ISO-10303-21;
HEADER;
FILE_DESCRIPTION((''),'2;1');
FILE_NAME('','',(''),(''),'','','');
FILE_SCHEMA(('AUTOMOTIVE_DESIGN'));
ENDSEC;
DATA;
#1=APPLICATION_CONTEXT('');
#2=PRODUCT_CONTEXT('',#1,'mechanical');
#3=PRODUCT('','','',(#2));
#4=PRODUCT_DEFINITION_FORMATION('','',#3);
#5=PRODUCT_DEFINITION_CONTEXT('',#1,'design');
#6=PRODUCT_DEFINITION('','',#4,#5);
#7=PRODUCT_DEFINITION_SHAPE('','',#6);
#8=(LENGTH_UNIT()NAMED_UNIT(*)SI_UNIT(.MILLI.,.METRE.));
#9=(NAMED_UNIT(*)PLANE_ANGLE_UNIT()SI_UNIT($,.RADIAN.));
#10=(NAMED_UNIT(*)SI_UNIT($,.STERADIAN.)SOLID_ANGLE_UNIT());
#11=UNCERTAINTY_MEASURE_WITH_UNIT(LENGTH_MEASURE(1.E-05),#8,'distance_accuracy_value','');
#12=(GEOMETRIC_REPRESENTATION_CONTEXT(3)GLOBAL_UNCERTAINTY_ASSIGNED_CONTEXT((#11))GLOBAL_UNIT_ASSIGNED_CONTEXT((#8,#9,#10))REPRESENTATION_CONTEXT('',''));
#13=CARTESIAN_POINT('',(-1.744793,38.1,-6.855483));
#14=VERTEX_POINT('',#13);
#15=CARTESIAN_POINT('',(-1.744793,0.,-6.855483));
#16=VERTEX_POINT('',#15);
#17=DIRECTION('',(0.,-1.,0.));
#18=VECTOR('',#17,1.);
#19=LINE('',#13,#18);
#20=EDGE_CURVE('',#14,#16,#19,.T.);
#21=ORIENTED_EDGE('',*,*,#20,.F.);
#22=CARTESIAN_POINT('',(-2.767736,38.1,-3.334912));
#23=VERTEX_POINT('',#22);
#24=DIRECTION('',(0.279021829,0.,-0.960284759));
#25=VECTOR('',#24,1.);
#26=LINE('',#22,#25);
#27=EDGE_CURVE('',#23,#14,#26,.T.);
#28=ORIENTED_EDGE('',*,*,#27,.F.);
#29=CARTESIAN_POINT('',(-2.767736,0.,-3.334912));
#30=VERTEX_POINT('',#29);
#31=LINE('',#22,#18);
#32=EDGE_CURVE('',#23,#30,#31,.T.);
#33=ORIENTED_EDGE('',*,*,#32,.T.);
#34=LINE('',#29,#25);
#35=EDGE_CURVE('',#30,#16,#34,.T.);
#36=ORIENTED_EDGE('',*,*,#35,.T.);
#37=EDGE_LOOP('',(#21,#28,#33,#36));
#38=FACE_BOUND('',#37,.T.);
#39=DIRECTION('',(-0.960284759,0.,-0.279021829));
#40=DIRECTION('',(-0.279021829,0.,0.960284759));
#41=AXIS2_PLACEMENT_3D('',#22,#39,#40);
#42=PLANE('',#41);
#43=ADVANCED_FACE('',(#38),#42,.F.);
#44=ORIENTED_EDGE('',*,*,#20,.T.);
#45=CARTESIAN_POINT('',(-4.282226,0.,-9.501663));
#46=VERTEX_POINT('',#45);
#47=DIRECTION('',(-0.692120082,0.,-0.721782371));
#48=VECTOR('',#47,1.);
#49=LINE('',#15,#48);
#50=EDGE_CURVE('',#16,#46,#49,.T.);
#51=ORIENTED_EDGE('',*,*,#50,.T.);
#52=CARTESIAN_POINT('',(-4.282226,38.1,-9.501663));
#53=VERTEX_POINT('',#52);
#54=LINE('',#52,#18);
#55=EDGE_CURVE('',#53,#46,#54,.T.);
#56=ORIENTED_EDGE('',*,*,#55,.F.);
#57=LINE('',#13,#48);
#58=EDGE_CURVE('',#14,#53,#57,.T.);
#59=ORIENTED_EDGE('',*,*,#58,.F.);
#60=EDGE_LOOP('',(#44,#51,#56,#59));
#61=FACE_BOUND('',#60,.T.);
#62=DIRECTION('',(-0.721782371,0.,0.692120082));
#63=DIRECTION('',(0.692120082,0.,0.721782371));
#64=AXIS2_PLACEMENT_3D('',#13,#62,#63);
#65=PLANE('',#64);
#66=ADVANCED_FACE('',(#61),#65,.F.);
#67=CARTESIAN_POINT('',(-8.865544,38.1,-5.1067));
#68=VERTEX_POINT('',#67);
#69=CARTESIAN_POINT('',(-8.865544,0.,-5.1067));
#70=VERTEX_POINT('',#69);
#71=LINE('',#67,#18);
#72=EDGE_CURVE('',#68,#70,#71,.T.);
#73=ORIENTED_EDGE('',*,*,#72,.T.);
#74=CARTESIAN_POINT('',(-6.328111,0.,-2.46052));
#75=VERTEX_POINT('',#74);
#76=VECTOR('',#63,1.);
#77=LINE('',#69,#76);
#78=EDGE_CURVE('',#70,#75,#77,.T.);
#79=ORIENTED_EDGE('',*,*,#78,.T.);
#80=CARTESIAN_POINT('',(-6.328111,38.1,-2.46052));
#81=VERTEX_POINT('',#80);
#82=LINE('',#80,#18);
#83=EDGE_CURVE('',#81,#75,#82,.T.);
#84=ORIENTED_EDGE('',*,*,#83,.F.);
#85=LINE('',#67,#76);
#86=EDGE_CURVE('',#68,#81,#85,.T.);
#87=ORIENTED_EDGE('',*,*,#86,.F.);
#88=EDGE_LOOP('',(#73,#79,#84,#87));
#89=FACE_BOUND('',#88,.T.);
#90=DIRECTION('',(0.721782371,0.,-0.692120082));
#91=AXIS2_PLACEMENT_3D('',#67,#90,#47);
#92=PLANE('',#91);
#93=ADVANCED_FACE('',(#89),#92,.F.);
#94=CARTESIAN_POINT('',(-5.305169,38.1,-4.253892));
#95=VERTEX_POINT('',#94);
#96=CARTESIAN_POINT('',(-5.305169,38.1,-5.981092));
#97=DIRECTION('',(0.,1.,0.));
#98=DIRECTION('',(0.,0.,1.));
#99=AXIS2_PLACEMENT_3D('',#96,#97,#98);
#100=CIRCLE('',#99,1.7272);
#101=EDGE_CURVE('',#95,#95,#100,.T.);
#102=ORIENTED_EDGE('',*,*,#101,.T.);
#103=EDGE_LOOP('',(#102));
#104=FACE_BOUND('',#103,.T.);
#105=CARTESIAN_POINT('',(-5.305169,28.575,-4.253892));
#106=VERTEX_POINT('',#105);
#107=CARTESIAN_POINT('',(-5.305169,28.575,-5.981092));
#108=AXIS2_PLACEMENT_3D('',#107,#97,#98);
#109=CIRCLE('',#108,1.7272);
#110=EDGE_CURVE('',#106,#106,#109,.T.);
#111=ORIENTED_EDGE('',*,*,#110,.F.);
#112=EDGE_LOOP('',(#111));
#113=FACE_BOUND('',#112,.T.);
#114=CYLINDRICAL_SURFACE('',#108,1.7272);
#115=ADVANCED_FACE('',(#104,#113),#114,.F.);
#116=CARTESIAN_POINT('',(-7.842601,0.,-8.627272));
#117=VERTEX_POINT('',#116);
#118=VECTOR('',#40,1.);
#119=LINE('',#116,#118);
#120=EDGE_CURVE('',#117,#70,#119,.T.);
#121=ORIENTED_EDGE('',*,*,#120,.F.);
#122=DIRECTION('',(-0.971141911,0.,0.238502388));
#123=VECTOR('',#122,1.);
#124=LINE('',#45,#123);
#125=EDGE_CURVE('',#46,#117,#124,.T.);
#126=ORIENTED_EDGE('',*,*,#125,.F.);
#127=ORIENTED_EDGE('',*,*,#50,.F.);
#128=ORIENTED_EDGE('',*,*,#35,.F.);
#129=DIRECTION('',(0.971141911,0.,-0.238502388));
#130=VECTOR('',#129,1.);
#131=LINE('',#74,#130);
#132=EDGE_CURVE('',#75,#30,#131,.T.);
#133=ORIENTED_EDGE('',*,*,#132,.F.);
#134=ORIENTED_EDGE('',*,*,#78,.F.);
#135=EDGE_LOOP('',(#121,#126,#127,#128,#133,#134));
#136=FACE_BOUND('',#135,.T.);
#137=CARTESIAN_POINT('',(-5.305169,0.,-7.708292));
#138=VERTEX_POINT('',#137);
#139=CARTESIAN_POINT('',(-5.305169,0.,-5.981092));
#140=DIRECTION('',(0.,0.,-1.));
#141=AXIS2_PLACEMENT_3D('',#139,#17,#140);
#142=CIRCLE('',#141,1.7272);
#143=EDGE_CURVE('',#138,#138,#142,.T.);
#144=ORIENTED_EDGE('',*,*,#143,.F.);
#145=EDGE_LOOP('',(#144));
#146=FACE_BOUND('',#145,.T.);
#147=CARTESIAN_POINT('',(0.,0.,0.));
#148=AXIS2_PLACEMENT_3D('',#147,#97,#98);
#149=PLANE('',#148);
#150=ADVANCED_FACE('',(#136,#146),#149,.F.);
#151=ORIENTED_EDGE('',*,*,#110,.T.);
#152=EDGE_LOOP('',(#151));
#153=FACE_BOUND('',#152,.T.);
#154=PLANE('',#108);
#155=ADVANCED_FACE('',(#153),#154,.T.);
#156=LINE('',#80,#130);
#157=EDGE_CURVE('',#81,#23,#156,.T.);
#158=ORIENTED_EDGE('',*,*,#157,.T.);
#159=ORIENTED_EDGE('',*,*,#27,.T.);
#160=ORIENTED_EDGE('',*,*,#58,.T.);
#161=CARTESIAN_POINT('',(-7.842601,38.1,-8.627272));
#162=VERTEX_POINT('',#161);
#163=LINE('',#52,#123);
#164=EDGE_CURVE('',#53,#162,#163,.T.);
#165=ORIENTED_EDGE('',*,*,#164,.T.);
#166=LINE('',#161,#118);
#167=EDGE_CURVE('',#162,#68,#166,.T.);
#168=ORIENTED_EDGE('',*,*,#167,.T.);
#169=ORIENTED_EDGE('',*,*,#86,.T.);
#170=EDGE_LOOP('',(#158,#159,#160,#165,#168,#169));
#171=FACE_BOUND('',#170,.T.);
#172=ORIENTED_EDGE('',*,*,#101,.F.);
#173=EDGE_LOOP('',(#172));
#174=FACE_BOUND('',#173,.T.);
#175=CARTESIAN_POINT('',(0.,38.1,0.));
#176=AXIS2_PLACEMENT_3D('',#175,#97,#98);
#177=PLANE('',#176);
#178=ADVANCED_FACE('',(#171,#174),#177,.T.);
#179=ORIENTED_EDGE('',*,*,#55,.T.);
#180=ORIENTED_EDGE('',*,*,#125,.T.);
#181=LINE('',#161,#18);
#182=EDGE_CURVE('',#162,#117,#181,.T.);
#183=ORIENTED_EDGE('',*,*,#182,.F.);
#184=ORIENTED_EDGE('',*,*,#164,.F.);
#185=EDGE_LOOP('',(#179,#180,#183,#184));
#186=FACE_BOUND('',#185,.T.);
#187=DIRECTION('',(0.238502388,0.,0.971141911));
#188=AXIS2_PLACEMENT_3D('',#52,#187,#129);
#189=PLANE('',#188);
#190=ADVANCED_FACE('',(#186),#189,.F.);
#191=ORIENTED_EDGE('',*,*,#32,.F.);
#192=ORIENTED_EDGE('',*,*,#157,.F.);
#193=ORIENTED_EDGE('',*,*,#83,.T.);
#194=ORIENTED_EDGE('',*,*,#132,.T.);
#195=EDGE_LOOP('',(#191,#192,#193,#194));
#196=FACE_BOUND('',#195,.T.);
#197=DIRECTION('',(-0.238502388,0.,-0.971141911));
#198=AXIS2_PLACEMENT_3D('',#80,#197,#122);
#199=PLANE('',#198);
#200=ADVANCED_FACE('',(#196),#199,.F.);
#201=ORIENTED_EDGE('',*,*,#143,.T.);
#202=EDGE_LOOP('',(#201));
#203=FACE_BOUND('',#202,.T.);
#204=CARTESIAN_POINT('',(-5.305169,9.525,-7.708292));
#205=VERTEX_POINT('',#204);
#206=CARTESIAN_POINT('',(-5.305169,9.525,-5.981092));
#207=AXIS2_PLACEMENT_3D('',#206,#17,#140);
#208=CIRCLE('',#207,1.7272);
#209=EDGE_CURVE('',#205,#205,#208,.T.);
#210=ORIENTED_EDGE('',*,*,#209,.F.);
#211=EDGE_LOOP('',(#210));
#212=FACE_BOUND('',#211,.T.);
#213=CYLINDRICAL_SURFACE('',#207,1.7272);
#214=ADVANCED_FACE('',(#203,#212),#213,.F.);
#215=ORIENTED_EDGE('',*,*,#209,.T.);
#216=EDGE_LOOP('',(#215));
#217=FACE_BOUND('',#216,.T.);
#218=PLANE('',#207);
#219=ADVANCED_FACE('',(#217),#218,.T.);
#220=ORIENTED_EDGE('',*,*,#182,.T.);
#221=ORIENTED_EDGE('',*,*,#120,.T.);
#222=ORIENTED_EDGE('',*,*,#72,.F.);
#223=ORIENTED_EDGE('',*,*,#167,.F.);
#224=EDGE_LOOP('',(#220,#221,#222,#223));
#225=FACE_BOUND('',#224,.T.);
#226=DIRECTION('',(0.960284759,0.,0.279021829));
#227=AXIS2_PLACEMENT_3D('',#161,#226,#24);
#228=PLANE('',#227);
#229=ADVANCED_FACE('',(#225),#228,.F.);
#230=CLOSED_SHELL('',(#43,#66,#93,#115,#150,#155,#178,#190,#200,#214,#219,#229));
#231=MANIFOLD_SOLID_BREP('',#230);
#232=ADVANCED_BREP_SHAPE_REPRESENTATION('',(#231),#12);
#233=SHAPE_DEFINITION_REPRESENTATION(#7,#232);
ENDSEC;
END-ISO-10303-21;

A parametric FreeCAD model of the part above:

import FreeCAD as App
import Part
import Sketcher
from FreeCAD import Vector
Q = App.Units.Quantity


def add_polygon(sketch, points):
    """Adds a closed chain of lines whose ends are joined by coincident constraints."""
    first, n = sketch.GeometryCount, len(points)
    for a, b in zip(points, points[1:] + points[:1]):
        sketch.addGeometry(Part.LineSegment(App.Vector(*a, 0), App.Vector(*b, 0)), False)
    for i in range(n):
        sketch.addConstraint(Sketcher.Constraint("Coincident", first + i, 2, first + (i + 1) % n, 1))

doc = App.newDocument("Part")
body = doc.addObject("PartDesign::Body", "Body")

# Sketch on XZ plane
sketch1 = body.newObject("Sketcher::SketchObject", "Sketch")
sketch1.AttachmentSupport = (doc.getObject("XZ_Plane"), [""])
sketch1.MapMode = "FlatFace"
add_polygon(sketch1, [(-2.8, -3.3), (-1.7, -6.9), (-4.3, -9.5), (-7.8, -8.6), (-8.9, -5.1), (-6.3, -2.5)])  # lines 0-5
sketch1.addConstraint([
    Sketcher.Constraint("Parallel", 0, 3),
    Sketcher.Constraint("Parallel", 1, 4),
    Sketcher.Constraint("Parallel", 2, 5),
    Sketcher.Constraint("Equal", 0, 1),
    Sketcher.Constraint("Equal", 1, 2),
    Sketcher.Constraint("Equal", 2, 3),
    Sketcher.Constraint("DistanceX", 2, 2, -1, 1, 7.842601),
    Sketcher.Constraint("DistanceY", 3, 2, -1, 1, 5.1067),
    Sketcher.Constraint("DistanceY", 2, 2, -1, 1, 8.627272),
    Sketcher.Constraint("DistanceX", 4, 2, -1, 1, 6.328111),
    Sketcher.Constraint("DistanceY", 4, 2, -1, 1, 2.46052),
    Sketcher.Constraint("DistanceY", 5, 2, -1, 1, 3.334912),
])
pad1 = body.newObject("PartDesign::Pad", "Pad")
pad1.Profile = sketch1
pad1.Length = Q("1.5 in")
pad1.Reversed = True

# Sketch on XZ plane
sketch2 = body.newObject("Sketcher::SketchObject", "Sketch001")
sketch2.AttachmentSupport = (doc.getObject("XZ_Plane"), [""])
sketch2.MapMode = "FlatFace"
sketch2.AttachmentOffset = App.Placement(Vector(0, 0, -1.5 * 25.4), App.Rotation())
sketch2.addGeometry(Part.Circle(Vector(-5.3, -6, 0), Vector(0, 0, 1), 1.7), False)
sketch2.addConstraint([
    Sketcher.Constraint("Diameter", 0, Q("0.136 in")),
    Sketcher.Constraint("DistanceX", 0, 3, -1, 1, 5.305169),
    Sketcher.Constraint("DistanceY", 0, 3, -1, 1, 5.981092),
])
pocket1 = body.newObject("PartDesign::Pocket", "Pocket")
pocket1.Profile = sketch2
pocket1.Length = Q("0.375 in")
pocket1.Reversed = True

# Sketch on XZ plane
sketch3 = body.newObject("Sketcher::SketchObject", "Sketch002")
sketch3.AttachmentSupport = (doc.getObject("XZ_Plane"), [""])
sketch3.MapMode = "FlatFace"
sketch3.addGeometry(Part.Circle(Vector(-5.3, -6, 0), Vector(0, 0, 1), 1.7), False)
sketch3.addConstraint([
    Sketcher.Constraint("Diameter", 0, Q("0.136 in")),
    Sketcher.Constraint("DistanceX", 0, 3, -1, 1, 5.305169),
    Sketcher.Constraint("DistanceY", 0, 3, -1, 1, 5.981092),
])
pocket2 = body.newObject("PartDesign::Pocket", "Pocket001")
pocket2.Profile = sketch3
pocket2.Length = Q("0.375 in")

doc.recompute()
